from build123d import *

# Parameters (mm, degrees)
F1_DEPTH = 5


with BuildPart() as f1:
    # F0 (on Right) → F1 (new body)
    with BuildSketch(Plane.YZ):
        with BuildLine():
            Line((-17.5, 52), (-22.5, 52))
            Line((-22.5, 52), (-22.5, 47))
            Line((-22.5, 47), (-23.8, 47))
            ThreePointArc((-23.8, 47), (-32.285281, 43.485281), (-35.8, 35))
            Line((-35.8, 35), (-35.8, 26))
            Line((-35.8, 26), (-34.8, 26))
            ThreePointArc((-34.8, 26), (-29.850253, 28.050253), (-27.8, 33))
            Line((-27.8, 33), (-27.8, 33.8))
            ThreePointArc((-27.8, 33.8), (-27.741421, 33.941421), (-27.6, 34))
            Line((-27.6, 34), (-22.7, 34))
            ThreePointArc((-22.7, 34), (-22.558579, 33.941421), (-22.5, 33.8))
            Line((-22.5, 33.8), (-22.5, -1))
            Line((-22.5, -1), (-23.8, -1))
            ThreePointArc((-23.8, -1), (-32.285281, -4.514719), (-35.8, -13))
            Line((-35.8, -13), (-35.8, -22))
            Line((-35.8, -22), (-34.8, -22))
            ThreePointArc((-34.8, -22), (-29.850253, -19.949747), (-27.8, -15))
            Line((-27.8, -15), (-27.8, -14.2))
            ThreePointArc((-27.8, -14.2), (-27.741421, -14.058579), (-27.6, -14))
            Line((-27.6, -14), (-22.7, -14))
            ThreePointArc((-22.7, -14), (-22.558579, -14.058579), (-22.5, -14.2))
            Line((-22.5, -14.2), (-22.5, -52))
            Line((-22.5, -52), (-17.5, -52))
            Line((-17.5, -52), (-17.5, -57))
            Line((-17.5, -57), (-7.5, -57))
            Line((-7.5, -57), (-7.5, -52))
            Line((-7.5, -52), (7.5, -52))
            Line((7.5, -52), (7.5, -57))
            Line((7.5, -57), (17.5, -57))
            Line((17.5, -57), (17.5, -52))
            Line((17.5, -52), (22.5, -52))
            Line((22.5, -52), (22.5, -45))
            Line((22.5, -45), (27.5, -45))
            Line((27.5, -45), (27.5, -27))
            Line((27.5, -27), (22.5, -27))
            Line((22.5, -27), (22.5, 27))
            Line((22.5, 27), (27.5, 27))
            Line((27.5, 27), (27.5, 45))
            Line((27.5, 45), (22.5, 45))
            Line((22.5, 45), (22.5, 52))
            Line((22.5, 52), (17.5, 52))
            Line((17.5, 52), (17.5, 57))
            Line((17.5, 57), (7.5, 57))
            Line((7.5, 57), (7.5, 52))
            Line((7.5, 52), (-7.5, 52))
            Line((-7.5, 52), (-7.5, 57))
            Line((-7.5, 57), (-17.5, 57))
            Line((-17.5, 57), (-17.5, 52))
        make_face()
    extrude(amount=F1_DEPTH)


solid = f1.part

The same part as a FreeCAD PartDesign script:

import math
import FreeCAD as App
import Part
import Sketcher
from FreeCAD import Vector

doc = App.newDocument("Part")
params = doc.addObject("Spreadsheet::Sheet", "Params")
for row, (alias, value) in enumerate([
    ("sketch1_radius", "12.000001 mm"),
    ("sketch1_radius2", "7.000002 mm"),
    ("sketch1_radius3", "0.200001 mm"),
    ("sketch1_width", "5 mm"),
    ("sketch1_width2", "1 mm"),
    ("pad1_length", "5 mm"),
], start=1):
    params.set(f"A{row}", alias)
    params.set(f"B{row}", "=" + value)
    params.setAlias(f"B{row}", alias)

body = doc.addObject("PartDesign::Body", "Body")

# Sketch on YZ plane
sketch1 = body.newObject("Sketcher::SketchObject", "Sketch")
sketch1.AttachmentSupport = (doc.getObject("YZ_Plane"), [""])
sketch1.MapMode = "FlatFace"
sketch1.addGeometry(Part.LineSegment(Vector(-17.5, 52, 0), Vector(-22.5, 52, 0)), False)
sketch1.addGeometry(Part.LineSegment(Vector(-22.5, 52, 0), Vector(-22.5, 47, 0)), False)
sketch1.addGeometry(Part.LineSegment(Vector(-22.5, 47, 0), Vector(-23.8, 47, 0)), False)
sketch1.addGeometry(Part.ArcOfCircle(Part.Circle(Vector(-23.799999, 34.999999, 0), Vector(0, 0, 1), 12.000001), math.radians(90.000006), math.radians(179.999994)), False)
sketch1.addGeometry(Part.LineSegment(Vector(-35.8, 35, 0), Vector(-35.8, 26, 0)), False)
sketch1.addGeometry(Part.LineSegment(Vector(-35.8, 26, 0), Vector(-34.8, 26, 0)), False)
sketch1.addGeometry(Part.ArcOfCircle(Part.Circle(Vector(-34.800002, 33.000002, 0), Vector(0, 0, 1), 7.000002), math.radians(-89.999987), math.radians(-0.000013)), False)
sketch1.addGeometry(Part.LineSegment(Vector(-27.8, 33, 0), Vector(-27.8, 33.8, 0)), False)
sketch1.addGeometry(Part.ArcOfCircle(Part.Circle(Vector(-27.599999, 33.799999, 0), Vector(0, 0, 1), 0.200001), math.radians(90.000348), math.radians(179.999652)), False)
sketch1.addGeometry(Part.LineSegment(Vector(-27.6, 34, 0), Vector(-22.7, 34, 0)), False)
sketch1.addGeometry(Part.ArcOfCircle(Part.Circle(Vector(-22.700001, 33.799999, 0), Vector(0, 0, 1), 0.200001), math.radians(0.000348), math.radians(89.999652)), False)
sketch1.addGeometry(Part.LineSegment(Vector(-22.5, 33.8, 0), Vector(-22.5, -1, 0)), False)
sketch1.addGeometry(Part.LineSegment(Vector(-22.5, -1, 0), Vector(-23.8, -1, 0)), False)
sketch1.addGeometry(Part.ArcOfCircle(Part.Circle(Vector(-23.799999, -13.000001, 0), Vector(0, 0, 1), 12.000001), math.radians(90.000006), math.radians(179.999994)), False)
sketch1.addGeometry(Part.LineSegment(Vector(-35.8, -13, 0), Vector(-35.8, -22, 0)), False)
sketch1.addGeometry(Part.LineSegment(Vector(-35.8, -22, 0), Vector(-34.8, -22, 0)), False)
sketch1.addGeometry(Part.ArcOfCircle(Part.Circle(Vector(-34.800002, -14.999998, 0), Vector(0, 0, 1), 7.000002), math.radians(-89.999987), math.radians(-0.000013)), False)
sketch1.addGeometry(Part.LineSegment(Vector(-27.8, -15, 0), Vector(-27.8, -14.2, 0)), False)
sketch1.addGeometry(Part.ArcOfCircle(Part.Circle(Vector(-27.599999, -14.200001, 0), Vector(0, 0, 1), 0.200001), math.radians(90.000348), math.radians(179.999652)), False)
sketch1.addGeometry(Part.LineSegment(Vector(-27.6, -14, 0), Vector(-22.7, -14, 0)), False)
sketch1.addGeometry(Part.ArcOfCircle(Part.Circle(Vector(-22.700001, -14.200001, 0), Vector(0, 0, 1), 0.200001), math.radians(0.000348), math.radians(89.999652)), False)
sketch1.addGeometry(Part.LineSegment(Vector(-22.5, -14.2, 0), Vector(-22.5, -52, 0)), False)
sketch1.addGeometry(Part.LineSegment(Vector(-22.5, -52, 0), Vector(-17.5, -52, 0)), False)
sketch1.addGeometry(Part.LineSegment(Vector(-17.5, -52, 0), Vector(-17.5, -57, 0)), False)
sketch1.addGeometry(Part.LineSegment(Vector(-17.5, -57, 0), Vector(-7.5, -57, 0)), False)
sketch1.addGeometry(Part.LineSegment(Vector(-7.5, -57, 0), Vector(-7.5, -52, 0)), False)
sketch1.addGeometry(Part.LineSegment(Vector(-7.5, -52, 0), Vector(7.5, -52, 0)), False)
sketch1.addGeometry(Part.LineSegment(Vector(7.5, -52, 0), Vector(7.5, -57, 0)), False)
sketch1.addGeometry(Part.LineSegment(Vector(7.5, -57, 0), Vector(17.5, -57, 0)), False)
sketch1.addGeometry(Part.LineSegment(Vector(17.5, -57, 0), Vector(17.5, -52, 0)), False)
sketch1.addGeometry(Part.LineSegment(Vector(17.5, -52, 0), Vector(22.5, -52, 0)), False)
sketch1.addGeometry(Part.LineSegment(Vector(22.5, -52, 0), Vector(22.5, -45, 0)), False)
sketch1.addGeometry(Part.LineSegment(Vector(22.5, -45, 0), Vector(27.5, -45, 0)), False)
sketch1.addGeometry(Part.LineSegment(Vector(27.5, -45, 0), Vector(27.5, -27, 0)), False)
sketch1.addGeometry(Part.LineSegment(Vector(27.5, -27, 0), Vector(22.5, -27, 0)), False)
sketch1.addGeometry(Part.LineSegment(Vector(22.5, -27, 0), Vector(22.5, 27, 0)), False)
sketch1.addGeometry(Part.LineSegment(Vector(22.5, 27, 0), Vector(27.5, 27, 0)), False)
sketch1.addGeometry(Part.LineSegment(Vector(27.5, 27, 0), Vector(27.5, 45, 0)), False)
sketch1.addGeometry(Part.LineSegment(Vector(27.5, 45, 0), Vector(22.5, 45, 0)), False)
sketch1.addGeometry(Part.LineSegment(Vector(22.5, 45, 0), Vector(22.5, 52, 0)), False)
sketch1.addGeometry(Part.LineSegment(Vector(22.5, 52, 0), Vector(17.5, 52, 0)), False)
sketch1.addGeometry(Part.LineSegment(Vector(17.5, 52, 0), Vector(17.5, 57, 0)), False)
sketch1.addGeometry(Part.LineSegment(Vector(17.5, 57, 0), Vector(7.5, 57, 0)), False)
sketch1.addGeometry(Part.LineSegment(Vector(7.5, 57, 0), Vector(7.5, 52, 0)), False)
sketch1.addGeometry(Part.LineSegment(Vector(7.5, 52, 0), Vector(-7.5, 52, 0)), False)
sketch1.addGeometry(Part.LineSegment(Vector(-7.5, 52, 0), Vector(-7.5, 57, 0)), False)
sketch1.addGeometry(Part.LineSegment(Vector(-7.5, 57, 0), Vector(-17.5, 57, 0)), False)
sketch1.addGeometry(Part.LineSegment(Vector(-17.5, 57, 0), Vector(-17.5, 52, 0)), False)
sketch1.addConstraint(Sketcher.Constraint("Coincident", 0, 2, 1, 1))
sketch1.addConstraint(Sketcher.Constraint("Coincident", 1, 2, 2, 1))
sketch1.addConstraint(Sketcher.Constraint("Tangent", 2, 2, 3, 1))
sketch1.addConstraint(Sketcher.Constraint("Tangent", 3, 2, 4, 1))
sketch1.addConstraint(Sketcher.Constraint("Coincident", 4, 2, 5, 1))
sketch1.addConstraint(Sketcher.Constraint("Tangent", 5, 2, 6, 1))
sketch1.addConstraint(Sketcher.Constraint("Tangent", 6, 2, 7, 1))
sketch1.addConstraint(Sketcher.Constraint("Coincident", 7, 2, 8, 2))
sketch1.addConstraint(Sketcher.Constraint("Coincident", 8, 1, 9, 1))
sketch1.addConstraint(Sketcher.Constraint("Coincident", 9, 2, 10, 2))
sketch1.addConstraint(Sketcher.Constraint("Coincident", 10, 1, 11, 1))
sketch1.addConstraint(Sketcher.Constraint("Coincident", 11, 2, 12, 1))
sketch1.addConstraint(Sketcher.Constraint("Tangent", 12, 2, 13, 1))
sketch1.addConstraint(Sketcher.Constraint("Tangent", 13, 2, 14, 1))
sketch1.addConstraint(Sketcher.Constraint("Coincident", 14, 2, 15, 1))
sketch1.addConstraint(Sketcher.Constraint("Tangent", 15, 2, 16, 1))
sketch1.addConstraint(Sketcher.Constraint("Tangent", 16, 2, 17, 1))
sketch1.addConstraint(Sketcher.Constraint("Coincident", 17, 2, 18, 2))
sketch1.addConstraint(Sketcher.Constraint("Coincident", 18, 1, 19, 1))
sketch1.addConstraint(Sketcher.Constraint("Coincident", 19, 2, 20, 2))
sketch1.addConstraint(Sketcher.Constraint("Coincident", 20, 1, 21, 1))
sketch1.addConstraint(Sketcher.Constraint("Coincident", 21, 2, 22, 1))
sketch1.addConstraint(Sketcher.Constraint("Coincident", 22, 2, 23, 1))
sketch1.addConstraint(Sketcher.Constraint("Coincident", 23, 2, 24, 1))
sketch1.addConstraint(Sketcher.Constraint("Coincident", 24, 2, 25, 1))
sketch1.addConstraint(Sketcher.Constraint("Coincident", 25, 2, 26, 1))
sketch1.addConstraint(Sketcher.Constraint("Coincident", 26, 2, 27, 1))
sketch1.addConstraint(Sketcher.Constraint("Coincident", 27, 2, 28, 1))
sketch1.addConstraint(Sketcher.Constraint("Coincident", 28, 2, 29, 1))
sketch1.addConstraint(Sketcher.Constraint("Coincident", 29, 2, 30, 1))
sketch1.addConstraint(Sketcher.Constraint("Coincident", 30, 2, 31, 1))
sketch1.addConstraint(Sketcher.Constraint("Coincident", 31, 2, 32, 1))
sketch1.addConstraint(Sketcher.Constraint("Coincident", 32, 2, 33, 1))
sketch1.addConstraint(Sketcher.Constraint("Coincident", 33, 2, 34, 1))
sketch1.addConstraint(Sketcher.Constraint("Coincident", 34, 2, 35, 1))
sketch1.addConstraint(Sketcher.Constraint("Coincident", 35, 2, 36, 1))
sketch1.addConstraint(Sketcher.Constraint("Coincident", 36, 2, 37, 1))
sketch1.addConstraint(Sketcher.Constraint("Coincident", 37, 2, 38, 1))
sketch1.addConstraint(Sketcher.Constraint("Coincident", 38, 2, 39, 1))
sketch1.addConstraint(Sketcher.Constraint("Coincident", 39, 2, 40, 1))
sketch1.addConstraint(Sketcher.Constraint("Coincident", 40, 2, 41, 1))
sketch1.addConstraint(Sketcher.Constraint("Coincident", 41, 2, 42, 1))
sketch1.addConstraint(Sketcher.Constraint("Coincident", 42, 2, 43, 1))
sketch1.addConstraint(Sketcher.Constraint("Coincident", 43, 2, 44, 1))
sketch1.addConstraint(Sketcher.Constraint("Coincident", 44, 2, 45, 1))
sketch1.addConstraint(Sketcher.Constraint("Coincident", 45, 2, 46, 1))
sketch1.addConstraint(Sketcher.Constraint("Coincident", 46, 2, 47, 1))
sketch1.addConstraint(Sketcher.Constraint("Coincident", 47, 2, 0, 1))
sketch1.addConstraint(Sketcher.Constraint("Horizontal", 0))
sketch1.addConstraint(Sketcher.Constraint("Vertical", 1))
sketch1.addConstraint(Sketcher.Constraint("Horizontal", 2))
sketch1.addConstraint(Sketcher.Constraint("Vertical", 4))
sketch1.addConstraint(Sketcher.Constraint("Horizontal", 5))
sketch1.addConstraint(Sketcher.Constraint("Vertical", 7))
sketch1.addConstraint(Sketcher.Constraint("Horizontal", 9))
sketch1.addConstraint(Sketcher.Constraint("Vertical", 11))
sketch1.addConstraint(Sketcher.Constraint("Horizontal", 12))
sketch1.addConstraint(Sketcher.Constraint("Vertical", 14))
sketch1.addConstraint(Sketcher.Constraint("Horizontal", 15))
sketch1.addConstraint(Sketcher.Constraint("Vertical", 17))
sketch1.addConstraint(Sketcher.Constraint("Horizontal", 19))
sketch1.addConstraint(Sketcher.Constraint("Vertical", 21))
sketch1.addConstraint(Sketcher.Constraint("Horizontal", 22))
sketch1.addConstraint(Sketcher.Constraint("Vertical", 23))
sketch1.addConstraint(Sketcher.Constraint("Horizontal", 24))
sketch1.addConstraint(Sketcher.Constraint("Vertical", 25))
sketch1.addConstraint(Sketcher.Constraint("Horizontal", 26))
sketch1.addConstraint(Sketcher.Constraint("Vertical", 27))
sketch1.addConstraint(Sketcher.Constraint("Horizontal", 28))
sketch1.addConstraint(Sketcher.Constraint("Vertical", 29))
sketch1.addConstraint(Sketcher.Constraint("Horizontal", 30))
sketch1.addConstraint(Sketcher.Constraint("Vertical", 31))
sketch1.addConstraint(Sketcher.Constraint("Horizontal", 32))
sketch1.addConstraint(Sketcher.Constraint("Vertical", 33))
sketch1.addConstraint(Sketcher.Constraint("Horizontal", 34))
sketch1.addConstraint(Sketcher.Constraint("Vertical", 35))
sketch1.addConstraint(Sketcher.Constraint("Horizontal", 36))
sketch1.addConstraint(Sketcher.Constraint("Vertical", 37))
sketch1.addConstraint(Sketcher.Constraint("Horizontal", 38))
sketch1.addConstraint(Sketcher.Constraint("Vertical", 39))
sketch1.addConstraint(Sketcher.Constraint("Horizontal", 40))
sketch1.addConstraint(Sketcher.Constraint("Vertical", 41))
sketch1.addConstraint(Sketcher.Constraint("Horizontal", 42))
sketch1.addConstraint(Sketcher.Constraint("Vertical", 43))
sketch1.addConstraint(Sketcher.Constraint("Horizontal", 44))
sketch1.addConstraint(Sketcher.Constraint("Vertical", 45))
sketch1.addConstraint(Sketcher.Constraint("Horizontal", 46))
sketch1.addConstraint(Sketcher.Constraint("Vertical", 47))
sketch1.addConstraint(Sketcher.Constraint("Equal", 8, 10))
sketch1.addConstraint(Sketcher.Constraint("Equal", 3, 13))
sketch1.addConstraint(Sketcher.Constraint("Equal", 6, 16))
sketch1.addConstraint(Sketcher.Constraint("Equal", 10, 18))
sketch1.addConstraint(Sketcher.Constraint("Equal", 18, 20))
sketch1.addConstraint(Sketcher.Constraint("Symmetric", 0, 2, 30, 2, -1, 1))
sketch1.addConstraint(Sketcher.Constraint("Symmetric", 21, 2, 39, 2, -1, 1))
sketch1.addConstraint(Sketcher.Constraint("Symmetric", 23, 2, 41, 2, -1, 1))
sketch1.addConstraint(Sketcher.Constraint("Symmetric", 25, 2, 43, 2, -1, 1))
sketch1.addConstraint(Sketcher.Constraint("Symmetric", 27, 2, 45, 2, -1, 1))
sketch1.addConstraint(Sketcher.Constraint("Symmetric", 24, 2, 27, 2, -2))
sketch1.addConstraint(Sketcher.Constraint("Symmetric", 22, 2, 29, 2, -2))
sketch1.addConstraint(Sketcher.Constraint("Symmetric", 33, 2, 36, 2, -1))
sketch1.addConstraint(Sketcher.Constraint("Symmetric", 31, 2, 38, 2, -1))
sketch1.addConstraint(Sketcher.Constraint("Horizontal", 10, 3, 7, 2))
sketch1.addConstraint(Sketcher.Constraint("Horizontal", 7, 2, 10, 1))
sketch1.addConstraint(Sketcher.Constraint("Horizontal", 20, 3, 17, 2))
sketch1.addConstraint(Sketcher.Constraint("Horizontal", 17, 2, 20, 1))
sketch1.addConstraint(Sketcher.Constraint("Horizontal", 22, 2, 25, 2))
sketch1.addConstraint(Sketcher.Constraint("Vertical", 3, 3, 13, 3))
sketch1.addConstraint(Sketcher.Constraint("Vertical", 6, 3, 16, 3))
sketch1.addConstraint(Sketcher.Constraint("Vertical", 10, 3, 20, 3))
sketch1.addConstraint(Sketcher.Constraint("Vertical", 18, 3, 8, 1))
sketch1.addConstraint(Sketcher.Constraint("Vertical", 20, 3, 9, 2))
sketch1.addConstraint(Sketcher.Constraint("Vertical", 8, 1, 18, 1))
sketch1.addConstraint(Sketcher.Constraint("Vertical", 9, 2, 19, 2))
sketch1.addConstraint(Sketcher.Constraint("Vertical", 31, 2, 34, 2))
sketch1.addConstraint(Sketcher.Constraint("Vertical", 23, 2, 46, 2))
sketch1.addConstraint(Sketcher.Constraint("Equal", 30, 32))
sketch1.addConstraint(Sketcher.Constraint("Equal", 40, 1))
sketch1.addConstraint(Sketcher.Constraint("Equal", 4, 14))
sketch1.addConstraint(Sketcher.Constraint("Equal", 7, 17))
sketch1.addConstraint(Sketcher.Constraint("Equal", 1, 23))
sketch1.addConstraint(Sketcher.Constraint("Radius", 3, 12.000001))
sketch1.addConstraint(Sketcher.Constraint("Radius", 6, 7.000002))
sketch1.addConstraint(Sketcher.Constraint("Radius", 8, 0.200001))
sketch1.addConstraint(Sketcher.Constraint("DistanceX", 0, 2, 0, 1, 5.0))
sketch1.addConstraint(Sketcher.Constraint("DistanceX", 5, 1, 5, 2, 1.0))
sketch1.addConstraint(Sketcher.Constraint("DistanceX", 24, 1, 24, 2, 10.0))
sketch1.addConstraint(Sketcher.Constraint("DistanceX", 26, 1, 26, 2, 15.0))
sketch1.addConstraint(Sketcher.Constraint("DistanceY", 4, 2, 4, 1, 9.0))
sketch1.addConstraint(Sketcher.Constraint("DistanceY", 31, 1, 31, 2, 7.0))
sketch1.addConstraint(Sketcher.Constraint("DistanceY", 33, 1, 33, 2, 18.0))
sketch1.addConstraint(Sketcher.Constraint("DistanceY", 35, 1, 35, 2, 54.0))
sketch1.addConstraint(Sketcher.Constraint("DistanceX", 2, 2, 2, 1, 1.3))
sketch1.addConstraint(Sketcher.Constraint("DistanceY", 7, 1, 7, 2, 0.8))
sketch1.addConstraint(Sketcher.Constraint("DistanceY", 11, 2, 11, 1, 34.8))
sketch1.setExpression("Constraints[121]", "Params.sketch1_radius")
sketch1.setExpression("Constraints[122]", "Params.sketch1_radius2")
sketch1.setExpression("Constraints[123]", "Params.sketch1_radius3")
sketch1.setExpression("Constraints[124]", "Params.sketch1_width")
sketch1.setExpression("Constraints[125]", "Params.sketch1_width2")
pad1 = body.newObject("PartDesign::Pad", "Pad")
pad1.Profile = sketch1
pad1.setExpression("Length", "Params.pad1_length")

doc.recompute()
